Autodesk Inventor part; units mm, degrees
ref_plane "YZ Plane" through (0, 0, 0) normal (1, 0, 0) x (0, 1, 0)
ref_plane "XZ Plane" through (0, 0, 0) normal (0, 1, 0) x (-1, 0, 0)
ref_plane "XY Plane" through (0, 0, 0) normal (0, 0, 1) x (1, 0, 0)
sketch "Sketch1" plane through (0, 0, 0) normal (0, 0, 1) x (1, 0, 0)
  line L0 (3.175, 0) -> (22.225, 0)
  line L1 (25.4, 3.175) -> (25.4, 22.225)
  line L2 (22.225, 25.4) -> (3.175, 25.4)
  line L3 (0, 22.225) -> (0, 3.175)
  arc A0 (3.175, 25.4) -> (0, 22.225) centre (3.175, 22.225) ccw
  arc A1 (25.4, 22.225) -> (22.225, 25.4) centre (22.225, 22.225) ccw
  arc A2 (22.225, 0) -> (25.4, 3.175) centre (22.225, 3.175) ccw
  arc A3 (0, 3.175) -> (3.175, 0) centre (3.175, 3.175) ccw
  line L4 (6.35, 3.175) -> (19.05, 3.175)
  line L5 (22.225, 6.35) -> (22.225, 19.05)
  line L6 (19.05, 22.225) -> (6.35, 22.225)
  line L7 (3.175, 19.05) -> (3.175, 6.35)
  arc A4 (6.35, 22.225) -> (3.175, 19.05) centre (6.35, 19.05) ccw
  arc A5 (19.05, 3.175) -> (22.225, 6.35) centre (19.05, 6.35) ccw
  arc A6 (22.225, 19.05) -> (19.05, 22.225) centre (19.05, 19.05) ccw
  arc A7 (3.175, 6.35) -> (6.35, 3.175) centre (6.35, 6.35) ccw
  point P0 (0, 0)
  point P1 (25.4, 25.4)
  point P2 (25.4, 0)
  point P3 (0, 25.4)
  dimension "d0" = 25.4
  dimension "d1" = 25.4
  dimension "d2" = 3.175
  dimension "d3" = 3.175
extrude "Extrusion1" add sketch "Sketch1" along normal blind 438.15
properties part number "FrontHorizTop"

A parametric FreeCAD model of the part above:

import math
import FreeCAD as App
import Part
import Sketcher
from FreeCAD import Vector
Q = App.Units.Quantity

doc = App.newDocument("Part")
body = doc.addObject("PartDesign::Body", "Body")

# Sketch on XY plane
sketch1 = body.newObject("Sketcher::SketchObject", "Sketch")
sketch1.AttachmentSupport = (doc.getObject("XY_Plane"), [""])
sketch1.MapMode = "FlatFace"
sketch1.addGeometry([
    Part.ArcOfCircle(Part.Circle(Vector(3.175, 3.175, 0), Vector(0, 0, 1), 3.175), math.radians(180), math.radians(270)),  # 0
    Part.LineSegment(Vector(3.175, 0, 0), Vector(22.225, 0, 0)),  # 1
    Part.ArcOfCircle(Part.Circle(Vector(22.225, 3.175, 0), Vector(0, 0, 1), 3.175), math.radians(-90), math.radians(0)),  # 2
    Part.LineSegment(Vector(25.4, 3.175, 0), Vector(25.4, 22.225, 0)),  # 3
    Part.ArcOfCircle(Part.Circle(Vector(22.225, 22.225, 0), Vector(0, 0, 1), 3.175), math.radians(0), math.radians(90)),  # 4
    Part.LineSegment(Vector(22.225, 25.4, 0), Vector(3.175, 25.4, 0)),  # 5
    Part.ArcOfCircle(Part.Circle(Vector(3.175, 22.225, 0), Vector(0, 0, 1), 3.175), math.radians(90), math.radians(180)),  # 6
    Part.LineSegment(Vector(0, 22.225, 0), Vector(0, 3.175, 0)),  # 7
    Part.LineSegment(Vector(19.05, 3.175, 0), Vector(6.35, 3.175, 0)),  # 8
    Part.ArcOfCircle(Part.Circle(Vector(6.35, 6.35, 0), Vector(0, 0, 1), 3.175), math.radians(180), math.radians(270)),  # 9
    Part.LineSegment(Vector(3.175, 6.35, 0), Vector(3.175, 19.05, 0)),  # 10
    Part.ArcOfCircle(Part.Circle(Vector(6.35, 19.05, 0), Vector(0, 0, 1), 3.175), math.radians(90), math.radians(180)),  # 11
    Part.LineSegment(Vector(6.35, 22.225, 0), Vector(19.05, 22.225, 0)),  # 12
    Part.ArcOfCircle(Part.Circle(Vector(19.05, 19.05, 0), Vector(0, 0, 1), 3.175), math.radians(0), math.radians(90)),  # 13
    Part.LineSegment(Vector(22.225, 19.05, 0), Vector(22.225, 6.35, 0)),  # 14
    Part.ArcOfCircle(Part.Circle(Vector(19.05, 6.35, 0), Vector(0, 0, 1), 3.175), math.radians(-90), math.radians(0)),  # 15
], False)
sketch1.addConstraint([
    Sketcher.Constraint("Tangent", 0, 2, 1, 1),
    Sketcher.Constraint("Tangent", 1, 2, 2, 1),
    Sketcher.Constraint("Tangent", 2, 2, 3, 1),
    Sketcher.Constraint("Tangent", 3, 2, 4, 1),
    Sketcher.Constraint("Tangent", 4, 2, 5, 1),
    Sketcher.Constraint("Tangent", 5, 2, 6, 1),
    Sketcher.Constraint("Tangent", 6, 2, 7, 1),
    Sketcher.Constraint("Tangent", 7, 2, 0, 1),
    Sketcher.Constraint("Tangent", 8, 2, 9, 2),
    Sketcher.Constraint("Tangent", 9, 1, 10, 1),
    Sketcher.Constraint("Tangent", 10, 2, 11, 2),
    Sketcher.Constraint("Tangent", 11, 1, 12, 1),
    Sketcher.Constraint("Tangent", 12, 2, 13, 2),
    Sketcher.Constraint("Tangent", 13, 1, 14, 1),
    Sketcher.Constraint("Tangent", 14, 2, 15, 2),
    Sketcher.Constraint("Tangent", 15, 1, 8, 1),
    Sketcher.Constraint("Horizontal", 1),
    Sketcher.Constraint("Vertical", 3),
    Sketcher.Constraint("Horizontal", 5),
    Sketcher.Constraint("Vertical", 7),
    Sketcher.Constraint("Horizontal", 8),
    Sketcher.Constraint("Vertical", 10),
    Sketcher.Constraint("Horizontal", 12),
    Sketcher.Constraint("Vertical", 14),
    Sketcher.Constraint("Equal", 0, 2),
    Sketcher.Constraint("Equal", 2, 4),
    Sketcher.Constraint("Equal", 4, 6),
    Sketcher.Constraint("Equal", 6, 9),
    Sketcher.Constraint("Equal", 9, 11),
    Sketcher.Constraint("Equal", 11, 13),
    Sketcher.Constraint("Equal", 13, 15),
    Sketcher.Constraint("PointOnObject", 0, 2, -1),
    Sketcher.Constraint("PointOnObject", 6, 2, -2),
    Sketcher.Constraint("Horizontal", 7, 2, 8, 2),
    Sketcher.Constraint("Horizontal", 6, 2, 11, 1),
    Sketcher.Constraint("Vertical", 5, 2, 9, 1),
    Sketcher.Constraint("Vertical", 4, 2, 13, 1),
    Sketcher.Constraint("Equal", 5, 3),
    Sketcher.Constraint("DistanceX", -1, 1, 2, 2, Q("1 in")),
    Sketcher.Constraint("Radius", 0, Q("0.125 in")),
])
pad1 = body.newObject("PartDesign::Pad", "Pad")
pad1.Profile = sketch1
pad1.Length = Q("17.25 in")

doc.recompute()
